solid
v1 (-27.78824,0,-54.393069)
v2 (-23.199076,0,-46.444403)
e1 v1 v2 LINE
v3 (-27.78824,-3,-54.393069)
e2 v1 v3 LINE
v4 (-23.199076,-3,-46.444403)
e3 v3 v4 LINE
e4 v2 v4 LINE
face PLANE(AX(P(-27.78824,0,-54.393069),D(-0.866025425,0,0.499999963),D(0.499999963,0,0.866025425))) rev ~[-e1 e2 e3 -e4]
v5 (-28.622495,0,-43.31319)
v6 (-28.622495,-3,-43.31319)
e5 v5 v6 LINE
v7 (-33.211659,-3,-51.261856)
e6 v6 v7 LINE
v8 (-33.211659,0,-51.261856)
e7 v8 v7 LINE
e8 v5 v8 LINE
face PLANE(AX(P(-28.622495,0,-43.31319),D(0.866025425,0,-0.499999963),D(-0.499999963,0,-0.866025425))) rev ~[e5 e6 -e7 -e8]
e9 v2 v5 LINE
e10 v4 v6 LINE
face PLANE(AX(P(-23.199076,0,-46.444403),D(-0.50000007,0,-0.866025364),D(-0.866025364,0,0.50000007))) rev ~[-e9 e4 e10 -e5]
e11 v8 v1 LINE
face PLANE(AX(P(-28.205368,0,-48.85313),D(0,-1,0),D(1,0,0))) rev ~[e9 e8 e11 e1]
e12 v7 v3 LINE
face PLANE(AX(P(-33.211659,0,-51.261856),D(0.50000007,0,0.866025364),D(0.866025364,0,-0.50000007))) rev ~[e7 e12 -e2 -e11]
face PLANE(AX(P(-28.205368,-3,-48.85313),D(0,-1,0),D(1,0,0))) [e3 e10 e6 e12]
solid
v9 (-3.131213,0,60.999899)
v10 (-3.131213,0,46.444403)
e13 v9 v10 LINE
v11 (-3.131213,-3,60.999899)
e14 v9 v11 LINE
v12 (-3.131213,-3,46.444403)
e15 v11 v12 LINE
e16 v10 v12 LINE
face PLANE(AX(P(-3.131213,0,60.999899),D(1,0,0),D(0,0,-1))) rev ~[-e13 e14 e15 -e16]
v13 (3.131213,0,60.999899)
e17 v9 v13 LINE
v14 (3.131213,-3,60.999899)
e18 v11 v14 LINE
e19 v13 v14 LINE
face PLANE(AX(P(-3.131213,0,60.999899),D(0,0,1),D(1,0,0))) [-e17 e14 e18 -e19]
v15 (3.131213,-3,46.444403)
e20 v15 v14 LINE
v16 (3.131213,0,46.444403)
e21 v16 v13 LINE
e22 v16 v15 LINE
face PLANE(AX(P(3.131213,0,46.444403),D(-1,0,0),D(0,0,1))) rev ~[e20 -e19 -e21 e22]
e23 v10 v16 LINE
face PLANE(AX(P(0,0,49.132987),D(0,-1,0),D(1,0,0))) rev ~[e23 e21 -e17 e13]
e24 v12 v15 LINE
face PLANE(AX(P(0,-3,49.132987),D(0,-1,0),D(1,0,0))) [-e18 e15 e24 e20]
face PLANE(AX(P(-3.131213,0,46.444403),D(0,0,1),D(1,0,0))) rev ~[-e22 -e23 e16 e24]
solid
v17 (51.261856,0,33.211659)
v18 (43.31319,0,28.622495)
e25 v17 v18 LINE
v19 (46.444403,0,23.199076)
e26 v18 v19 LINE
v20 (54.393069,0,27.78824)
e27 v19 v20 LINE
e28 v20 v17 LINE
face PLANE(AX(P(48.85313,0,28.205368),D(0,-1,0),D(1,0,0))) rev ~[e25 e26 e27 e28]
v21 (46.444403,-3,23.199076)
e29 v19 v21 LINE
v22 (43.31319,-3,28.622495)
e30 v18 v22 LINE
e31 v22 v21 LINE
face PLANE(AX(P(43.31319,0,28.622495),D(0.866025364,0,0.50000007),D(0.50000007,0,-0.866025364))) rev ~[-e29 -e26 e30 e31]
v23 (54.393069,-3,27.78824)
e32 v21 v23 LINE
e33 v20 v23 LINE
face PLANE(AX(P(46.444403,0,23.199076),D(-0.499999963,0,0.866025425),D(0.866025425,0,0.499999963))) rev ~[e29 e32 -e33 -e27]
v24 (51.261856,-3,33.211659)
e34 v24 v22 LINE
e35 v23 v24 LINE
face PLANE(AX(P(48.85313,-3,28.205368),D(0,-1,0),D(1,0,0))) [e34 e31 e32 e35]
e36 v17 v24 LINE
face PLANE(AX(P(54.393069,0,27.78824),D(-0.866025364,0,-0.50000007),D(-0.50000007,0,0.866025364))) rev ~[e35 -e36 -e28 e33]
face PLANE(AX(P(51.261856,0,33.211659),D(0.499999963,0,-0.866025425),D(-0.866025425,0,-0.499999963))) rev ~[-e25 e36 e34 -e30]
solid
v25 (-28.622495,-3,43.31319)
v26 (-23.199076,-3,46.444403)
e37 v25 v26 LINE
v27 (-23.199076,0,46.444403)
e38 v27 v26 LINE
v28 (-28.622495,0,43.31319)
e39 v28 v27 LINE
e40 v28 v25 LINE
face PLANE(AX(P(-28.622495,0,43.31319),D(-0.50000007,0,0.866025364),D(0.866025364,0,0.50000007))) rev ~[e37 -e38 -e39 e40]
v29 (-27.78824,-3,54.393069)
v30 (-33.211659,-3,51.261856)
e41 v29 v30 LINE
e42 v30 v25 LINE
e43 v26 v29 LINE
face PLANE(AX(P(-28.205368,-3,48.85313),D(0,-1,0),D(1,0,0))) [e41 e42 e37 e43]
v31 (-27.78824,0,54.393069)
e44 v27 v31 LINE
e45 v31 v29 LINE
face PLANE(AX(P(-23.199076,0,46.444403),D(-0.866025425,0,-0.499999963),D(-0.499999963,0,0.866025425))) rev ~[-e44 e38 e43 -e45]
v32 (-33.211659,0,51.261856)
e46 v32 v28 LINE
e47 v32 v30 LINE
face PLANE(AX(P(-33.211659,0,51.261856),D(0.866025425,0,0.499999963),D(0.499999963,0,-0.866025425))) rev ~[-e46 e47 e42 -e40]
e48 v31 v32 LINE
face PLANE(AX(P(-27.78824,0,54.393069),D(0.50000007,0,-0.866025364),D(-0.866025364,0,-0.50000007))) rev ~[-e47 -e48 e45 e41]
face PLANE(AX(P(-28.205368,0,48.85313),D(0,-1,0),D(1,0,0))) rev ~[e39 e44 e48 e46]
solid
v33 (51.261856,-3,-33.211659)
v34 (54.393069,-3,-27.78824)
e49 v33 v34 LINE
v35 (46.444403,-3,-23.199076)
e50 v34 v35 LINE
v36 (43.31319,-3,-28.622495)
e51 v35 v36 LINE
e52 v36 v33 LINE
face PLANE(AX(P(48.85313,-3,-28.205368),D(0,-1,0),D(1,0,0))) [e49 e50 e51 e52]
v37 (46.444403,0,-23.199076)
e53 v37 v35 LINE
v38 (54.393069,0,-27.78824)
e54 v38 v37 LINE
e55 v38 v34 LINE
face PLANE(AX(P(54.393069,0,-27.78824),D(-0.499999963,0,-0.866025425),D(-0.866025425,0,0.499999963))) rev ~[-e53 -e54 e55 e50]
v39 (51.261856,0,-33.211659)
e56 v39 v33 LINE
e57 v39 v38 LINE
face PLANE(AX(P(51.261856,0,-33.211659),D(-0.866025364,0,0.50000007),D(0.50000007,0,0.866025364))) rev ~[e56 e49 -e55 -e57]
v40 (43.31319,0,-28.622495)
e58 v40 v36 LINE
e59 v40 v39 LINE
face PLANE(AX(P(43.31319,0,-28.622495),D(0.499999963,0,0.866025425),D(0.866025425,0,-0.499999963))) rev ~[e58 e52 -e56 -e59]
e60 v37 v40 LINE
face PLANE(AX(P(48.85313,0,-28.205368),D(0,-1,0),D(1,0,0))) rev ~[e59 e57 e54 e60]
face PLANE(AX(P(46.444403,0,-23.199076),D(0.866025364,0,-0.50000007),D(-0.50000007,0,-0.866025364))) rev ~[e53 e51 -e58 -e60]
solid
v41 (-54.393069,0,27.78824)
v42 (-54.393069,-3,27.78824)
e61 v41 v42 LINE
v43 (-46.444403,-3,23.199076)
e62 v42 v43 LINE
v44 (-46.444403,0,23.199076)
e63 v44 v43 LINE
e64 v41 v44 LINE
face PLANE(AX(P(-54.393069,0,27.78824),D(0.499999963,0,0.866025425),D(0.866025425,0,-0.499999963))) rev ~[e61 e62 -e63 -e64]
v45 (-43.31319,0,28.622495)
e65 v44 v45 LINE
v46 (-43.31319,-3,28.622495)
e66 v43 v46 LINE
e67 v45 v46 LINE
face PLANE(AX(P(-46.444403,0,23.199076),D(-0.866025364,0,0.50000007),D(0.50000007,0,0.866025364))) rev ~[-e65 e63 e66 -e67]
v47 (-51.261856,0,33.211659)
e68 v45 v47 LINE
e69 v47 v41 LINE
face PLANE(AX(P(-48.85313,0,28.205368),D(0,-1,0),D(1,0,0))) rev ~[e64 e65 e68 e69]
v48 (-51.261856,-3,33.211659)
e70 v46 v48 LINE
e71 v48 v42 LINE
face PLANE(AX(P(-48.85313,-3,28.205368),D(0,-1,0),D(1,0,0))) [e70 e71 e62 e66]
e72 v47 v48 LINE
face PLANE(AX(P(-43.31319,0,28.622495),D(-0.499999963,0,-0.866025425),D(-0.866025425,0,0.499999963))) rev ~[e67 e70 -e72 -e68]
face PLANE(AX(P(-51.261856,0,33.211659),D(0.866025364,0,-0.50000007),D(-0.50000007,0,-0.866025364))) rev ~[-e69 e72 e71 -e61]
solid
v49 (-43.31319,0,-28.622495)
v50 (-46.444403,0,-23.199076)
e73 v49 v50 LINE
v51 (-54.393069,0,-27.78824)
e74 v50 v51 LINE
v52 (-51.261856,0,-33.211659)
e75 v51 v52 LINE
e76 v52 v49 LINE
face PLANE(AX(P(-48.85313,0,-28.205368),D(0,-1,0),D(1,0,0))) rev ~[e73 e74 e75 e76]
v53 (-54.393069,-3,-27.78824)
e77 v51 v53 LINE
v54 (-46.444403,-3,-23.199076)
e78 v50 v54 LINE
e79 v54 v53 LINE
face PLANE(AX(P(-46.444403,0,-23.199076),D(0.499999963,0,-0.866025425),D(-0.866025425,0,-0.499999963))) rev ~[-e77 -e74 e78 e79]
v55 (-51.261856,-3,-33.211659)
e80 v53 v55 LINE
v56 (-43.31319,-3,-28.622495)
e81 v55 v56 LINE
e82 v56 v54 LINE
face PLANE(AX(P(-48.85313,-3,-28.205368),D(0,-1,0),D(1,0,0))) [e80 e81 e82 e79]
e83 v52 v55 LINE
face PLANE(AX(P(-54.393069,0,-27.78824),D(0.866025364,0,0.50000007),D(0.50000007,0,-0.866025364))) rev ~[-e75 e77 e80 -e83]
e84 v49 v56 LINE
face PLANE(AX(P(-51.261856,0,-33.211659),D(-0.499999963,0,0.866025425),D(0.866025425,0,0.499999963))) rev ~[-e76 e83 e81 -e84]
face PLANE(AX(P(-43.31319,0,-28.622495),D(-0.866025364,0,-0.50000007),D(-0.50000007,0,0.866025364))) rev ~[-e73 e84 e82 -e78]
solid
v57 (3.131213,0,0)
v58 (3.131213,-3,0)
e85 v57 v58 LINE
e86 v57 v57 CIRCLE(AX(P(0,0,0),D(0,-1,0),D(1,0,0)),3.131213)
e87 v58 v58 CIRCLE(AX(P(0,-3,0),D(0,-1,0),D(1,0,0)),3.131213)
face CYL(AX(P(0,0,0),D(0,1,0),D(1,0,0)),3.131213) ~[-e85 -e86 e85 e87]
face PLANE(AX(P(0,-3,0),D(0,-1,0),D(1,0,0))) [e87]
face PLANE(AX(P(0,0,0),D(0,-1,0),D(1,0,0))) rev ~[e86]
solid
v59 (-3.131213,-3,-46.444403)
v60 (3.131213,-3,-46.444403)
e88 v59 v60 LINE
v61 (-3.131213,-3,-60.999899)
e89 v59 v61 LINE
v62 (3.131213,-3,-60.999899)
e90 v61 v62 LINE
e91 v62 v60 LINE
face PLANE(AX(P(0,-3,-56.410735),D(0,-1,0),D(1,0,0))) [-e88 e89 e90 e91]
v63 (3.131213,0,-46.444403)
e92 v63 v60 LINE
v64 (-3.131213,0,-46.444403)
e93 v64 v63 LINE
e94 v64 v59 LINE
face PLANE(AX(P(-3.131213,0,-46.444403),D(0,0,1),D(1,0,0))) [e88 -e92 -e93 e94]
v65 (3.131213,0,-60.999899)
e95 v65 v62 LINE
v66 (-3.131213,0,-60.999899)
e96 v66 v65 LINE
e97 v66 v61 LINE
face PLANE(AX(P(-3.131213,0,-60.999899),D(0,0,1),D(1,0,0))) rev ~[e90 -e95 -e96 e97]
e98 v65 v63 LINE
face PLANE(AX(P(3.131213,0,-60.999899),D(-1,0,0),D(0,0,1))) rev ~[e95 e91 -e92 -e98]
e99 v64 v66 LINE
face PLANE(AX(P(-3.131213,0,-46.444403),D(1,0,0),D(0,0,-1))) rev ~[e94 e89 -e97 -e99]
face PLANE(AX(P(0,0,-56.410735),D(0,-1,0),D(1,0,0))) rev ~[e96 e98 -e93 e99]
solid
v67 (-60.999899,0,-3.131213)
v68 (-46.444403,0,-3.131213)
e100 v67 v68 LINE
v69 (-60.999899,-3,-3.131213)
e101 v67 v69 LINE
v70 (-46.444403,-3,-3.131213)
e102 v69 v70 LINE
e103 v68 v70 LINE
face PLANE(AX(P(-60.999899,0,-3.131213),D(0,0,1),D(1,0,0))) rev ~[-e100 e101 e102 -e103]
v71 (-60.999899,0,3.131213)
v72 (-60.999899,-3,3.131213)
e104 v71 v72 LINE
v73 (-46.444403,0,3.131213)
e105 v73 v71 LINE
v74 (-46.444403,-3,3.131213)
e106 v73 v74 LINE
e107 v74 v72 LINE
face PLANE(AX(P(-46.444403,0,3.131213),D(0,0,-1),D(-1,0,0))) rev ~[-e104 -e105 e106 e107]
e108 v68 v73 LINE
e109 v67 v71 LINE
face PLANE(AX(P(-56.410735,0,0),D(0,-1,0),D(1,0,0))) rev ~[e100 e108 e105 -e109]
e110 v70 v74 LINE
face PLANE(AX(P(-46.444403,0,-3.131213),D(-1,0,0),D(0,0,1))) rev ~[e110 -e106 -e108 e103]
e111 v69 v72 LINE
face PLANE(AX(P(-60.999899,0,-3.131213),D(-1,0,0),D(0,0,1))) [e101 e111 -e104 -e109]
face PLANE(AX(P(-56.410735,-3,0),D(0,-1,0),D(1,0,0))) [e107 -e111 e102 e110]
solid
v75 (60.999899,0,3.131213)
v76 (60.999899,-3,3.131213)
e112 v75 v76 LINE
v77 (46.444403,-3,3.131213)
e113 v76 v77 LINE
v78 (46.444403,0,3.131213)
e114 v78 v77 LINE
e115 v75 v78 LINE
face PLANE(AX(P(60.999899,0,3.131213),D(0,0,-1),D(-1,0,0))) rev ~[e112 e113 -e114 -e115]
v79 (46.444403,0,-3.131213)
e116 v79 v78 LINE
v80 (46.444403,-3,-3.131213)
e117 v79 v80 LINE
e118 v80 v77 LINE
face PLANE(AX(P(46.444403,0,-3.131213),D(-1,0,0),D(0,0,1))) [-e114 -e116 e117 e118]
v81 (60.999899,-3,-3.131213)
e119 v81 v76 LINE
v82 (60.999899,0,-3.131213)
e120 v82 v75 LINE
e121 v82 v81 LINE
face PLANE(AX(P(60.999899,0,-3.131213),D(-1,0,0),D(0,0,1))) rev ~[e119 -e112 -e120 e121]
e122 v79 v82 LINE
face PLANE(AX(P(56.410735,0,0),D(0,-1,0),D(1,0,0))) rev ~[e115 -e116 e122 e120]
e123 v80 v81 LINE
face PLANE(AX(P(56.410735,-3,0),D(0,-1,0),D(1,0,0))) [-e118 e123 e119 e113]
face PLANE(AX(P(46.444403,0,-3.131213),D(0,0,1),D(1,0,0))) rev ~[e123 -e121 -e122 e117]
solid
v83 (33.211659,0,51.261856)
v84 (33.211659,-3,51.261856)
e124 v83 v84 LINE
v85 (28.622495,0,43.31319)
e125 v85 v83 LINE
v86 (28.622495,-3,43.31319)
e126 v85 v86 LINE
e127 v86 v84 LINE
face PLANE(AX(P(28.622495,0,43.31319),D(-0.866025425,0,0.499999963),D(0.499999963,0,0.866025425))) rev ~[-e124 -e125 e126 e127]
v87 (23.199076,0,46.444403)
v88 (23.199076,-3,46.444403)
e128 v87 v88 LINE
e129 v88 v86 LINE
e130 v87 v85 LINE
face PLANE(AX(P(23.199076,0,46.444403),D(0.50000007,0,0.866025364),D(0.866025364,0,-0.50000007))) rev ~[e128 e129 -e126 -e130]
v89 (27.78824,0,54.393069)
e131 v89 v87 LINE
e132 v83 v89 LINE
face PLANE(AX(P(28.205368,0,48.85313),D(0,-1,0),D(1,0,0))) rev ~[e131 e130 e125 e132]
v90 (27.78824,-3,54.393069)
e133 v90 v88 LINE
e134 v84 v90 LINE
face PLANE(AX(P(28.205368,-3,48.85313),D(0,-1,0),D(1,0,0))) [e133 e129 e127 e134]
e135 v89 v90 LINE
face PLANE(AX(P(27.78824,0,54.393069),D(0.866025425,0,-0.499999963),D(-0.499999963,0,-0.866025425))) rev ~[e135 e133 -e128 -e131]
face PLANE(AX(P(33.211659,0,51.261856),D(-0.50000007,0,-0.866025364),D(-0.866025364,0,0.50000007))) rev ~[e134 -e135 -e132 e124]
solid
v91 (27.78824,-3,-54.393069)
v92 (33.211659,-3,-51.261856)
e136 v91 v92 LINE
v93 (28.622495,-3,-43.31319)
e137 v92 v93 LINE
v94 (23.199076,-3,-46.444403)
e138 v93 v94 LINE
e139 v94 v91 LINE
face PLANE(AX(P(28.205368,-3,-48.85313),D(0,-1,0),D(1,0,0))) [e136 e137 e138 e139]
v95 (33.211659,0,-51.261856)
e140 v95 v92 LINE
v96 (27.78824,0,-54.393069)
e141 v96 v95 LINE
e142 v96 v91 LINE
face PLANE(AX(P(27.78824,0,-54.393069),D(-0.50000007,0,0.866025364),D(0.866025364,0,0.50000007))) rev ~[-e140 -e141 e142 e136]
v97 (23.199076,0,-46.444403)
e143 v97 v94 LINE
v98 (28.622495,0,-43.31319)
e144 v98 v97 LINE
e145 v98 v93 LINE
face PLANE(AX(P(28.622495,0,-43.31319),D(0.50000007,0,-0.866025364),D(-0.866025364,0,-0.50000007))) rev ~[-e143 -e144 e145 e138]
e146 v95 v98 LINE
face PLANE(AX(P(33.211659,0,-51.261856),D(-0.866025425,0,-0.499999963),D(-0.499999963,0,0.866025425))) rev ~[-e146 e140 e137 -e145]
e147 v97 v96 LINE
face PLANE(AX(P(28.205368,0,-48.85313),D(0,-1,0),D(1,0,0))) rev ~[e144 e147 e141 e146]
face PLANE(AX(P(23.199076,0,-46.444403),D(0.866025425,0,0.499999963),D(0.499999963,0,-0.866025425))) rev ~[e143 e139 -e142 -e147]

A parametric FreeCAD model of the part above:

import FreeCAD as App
import Part
import Sketcher

V = App.Vector
Q = App.Units.Quantity


def add_polygon(sketch, points):
    """Adds a closed chain of lines whose ends are joined by coincident constraints."""
    first, n = sketch.GeometryCount, len(points)
    for a, b in zip(points, points[1:] + points[:1]):
        sketch.addGeometry(Part.LineSegment(App.Vector(*a, 0), App.Vector(*b, 0)), False)
    for i in range(n):
        sketch.addConstraint(Sketcher.Constraint("Coincident", first + i, 2, first + (i + 1) % n, 1))

doc = App.newDocument("Part")
body = doc.addObject("PartDesign::Body", "Body")
body.AllowCompound = True

sketch1 = doc.addObject("Sketcher::SketchObject", "Sketch")
body.addObject(sketch1)
sketch1.AttachmentSupport = (doc.XZ_Plane, [""])
sketch1.MapMode = "FlatFace"
add_polygon(sketch1, [(-3.131213, 46.444403), (3.131213, 46.444403), (3.131213, 60.999899), (-3.131213, 60.999899)])
add_polygon(sketch1, [(-33.211659, 51.261856), (-28.622495, 43.31319), (-23.199076, 46.444403), (-27.78824, 54.393069)])
add_polygon(sketch1, [(-54.393069, 27.78824), (-46.444403, 23.199076), (-43.31319, 28.622495), (-51.261856, 33.211659)])
add_polygon(sketch1, [(-60.999899, 3.131213), (-60.999899, -3.131213), (-46.444403, -3.131213), (-46.444403, 3.131213)])
add_polygon(sketch1, [(-51.261856, -33.211659), (-43.31319, -28.622495), (-46.444403, -23.199076), (-54.393069, -27.78824)])
add_polygon(sketch1, [(-27.78824, -54.393069), (-23.199076, -46.444403), (-28.622495, -43.31319), (-33.211659, -51.261856)])
add_polygon(sketch1, [(-3.131213, -60.999899), (3.131213, -60.999899), (3.131213, -46.444403), (-3.131213, -46.444403)])
add_polygon(sketch1, [(33.211659, -51.261856), (28.622495, -43.31319), (23.199076, -46.444403), (27.78824, -54.393069)])
add_polygon(sketch1, [(54.393069, -27.78824), (46.444403, -23.199076), (43.31319, -28.622495), (51.261856, -33.211659)])
add_polygon(sketch1, [(60.999899, -3.131213), (60.999899, 3.131213), (46.444403, 3.131213), (46.444403, -3.131213)])
add_polygon(sketch1, [(51.261856, 33.211659), (43.31319, 28.622495), (46.444403, 23.199076), (54.393069, 27.78824)])
add_polygon(sketch1, [(27.78824, 54.393069), (23.199076, 46.444403), (28.622495, 43.31319), (33.211659, 51.261856)])
sketch1.addGeometry(Part.Circle(V(0, 0, 0), V(0, 0, 1), 3.131213), False)
sketch1.addConstraint([
    Sketcher.Constraint("Horizontal", 0),
    Sketcher.Constraint("Vertical", 1),
    Sketcher.Constraint("Horizontal", 2),
    Sketcher.Constraint("Vertical", 3),
    Sketcher.Constraint("Vertical", 12),
    Sketcher.Constraint("Horizontal", 13),
    Sketcher.Constraint("Vertical", 14),
    Sketcher.Constraint("Horizontal", 15),
    Sketcher.Constraint("Horizontal", 24),
    Sketcher.Constraint("Vertical", 25),
    Sketcher.Constraint("Horizontal", 26),
    Sketcher.Constraint("Vertical", 27),
    Sketcher.Constraint("Vertical", 36),
    Sketcher.Constraint("Horizontal", 37),
    Sketcher.Constraint("Vertical", 38),
    Sketcher.Constraint("Horizontal", 39),
    Sketcher.Constraint("Coincident", 48, 3, -1, 1),
    Sketcher.Constraint("Symmetric", 2, 2, 24, 2, -1, 1),
    Sketcher.Constraint("Symmetric", 0, 2, 26, 2, -1, 1),
    Sketcher.Constraint("Symmetric", 4, 2, 28, 2, -1, 1),
    Sketcher.Constraint("Symmetric", 5, 2, 29, 2, -1, 1),
    Sketcher.Constraint("Symmetric", 6, 2, 30, 2, -1, 1),
    Sketcher.Constraint("Symmetric", 7, 2, 31, 2, -1, 1),
    Sketcher.Constraint("Symmetric", 8, 2, 32, 2, -1, 1),
    Sketcher.Constraint("Symmetric", 9, 2, 33, 2, -1, 1),
    Sketcher.Constraint("Symmetric", 10, 2, 34, 2, -1, 1),
    Sketcher.Constraint("Symmetric", 11, 2, 35, 2, -1, 1),
    Sketcher.Constraint("Symmetric", 12, 2, 36, 2, -1, 1),
    Sketcher.Constraint("Symmetric", 14, 2, 38, 2, -1, 1),
    Sketcher.Constraint("Symmetric", 16, 2, 40, 2, -1, 1),
    Sketcher.Constraint("Symmetric", 17, 2, 41, 2, -1, 1),
    Sketcher.Constraint("Symmetric", 18, 2, 42, 2, -1, 1),
    Sketcher.Constraint("Symmetric", 19, 2, 43, 2, -1, 1),
    Sketcher.Constraint("Symmetric", 20, 2, 44, 2, -1, 1),
    Sketcher.Constraint("Symmetric", 21, 2, 45, 2, -1, 1),
    Sketcher.Constraint("Symmetric", 22, 2, 46, 2, -1, 1),
    Sketcher.Constraint("Symmetric", 23, 2, 47, 2, -1, 1),
    Sketcher.Constraint("Symmetric", 21, 2, 28, 2, -2),
    Sketcher.Constraint("Symmetric", 20, 2, 29, 2, -2),
    Sketcher.Constraint("Symmetric", 23, 2, 30, 2, -2),
    Sketcher.Constraint("Symmetric", 22, 2, 31, 2, -2),
    Sketcher.Constraint("Symmetric", 17, 2, 32, 2, -2),
    Sketcher.Constraint("Symmetric", 16, 2, 33, 2, -2),
    Sketcher.Constraint("Symmetric", 19, 2, 34, 2, -2),
    Sketcher.Constraint("Symmetric", 18, 2, 35, 2, -2),
    Sketcher.Constraint("Perpendicular", 4, 5),
    Sketcher.Constraint("Perpendicular", 5, 6),
    Sketcher.Constraint("Perpendicular", 6, 7),
    Sketcher.Constraint("Perpendicular", 8, 9),
    Sketcher.Constraint("Perpendicular", 9, 10),
    Sketcher.Constraint("Perpendicular", 10, 11),
    Sketcher.Constraint("Parallel", 7, 16),
    Sketcher.Constraint("Horizontal", 3, 2, 5, 2),
    Sketcher.Constraint("Horizontal", 15, 2, 36, 2),
    Sketcher.Constraint("Vertical", 8, 2, 13, 2),
    Sketcher.Constraint("Vertical", 1, 2, 24, 2),
    Sketcher.Constraint("Equal", 39, 1),
    Sketcher.Constraint("Equal", 26, 12),
    Sketcher.Constraint("Equal", 6, 8),
    Sketcher.Constraint("Equal", 7, 9),
    Sketcher.Constraint("Angle", 4, Q("-60.000002 deg")),
    Sketcher.Constraint("Diameter", 48, 6.262426),
    Sketcher.Constraint("DistanceY", -1, 1, 1, 2, 60.999899),
    Sketcher.Constraint("DistanceX", 12, 2, -1, 1, 60.999899),
    Sketcher.Constraint("Distance", 4, 9.178329),
    Sketcher.Constraint("DistanceX", 0, 1, 0, 2, 6.262426),
    Sketcher.Constraint("DistanceX", 13, 1, 13, 2, 14.555496),
    Sketcher.Constraint("DistanceY", -1, 1, 4, 2, 43.31319),
    Sketcher.Constraint("DistanceX", 6, 2, -1, 1, 27.78824),
    Sketcher.Constraint("DistanceY", -1, 1, 10, 2, 33.211659),
])
pad1 = doc.addObject("PartDesign::Pad", "Pad")
body.addObject(pad1)
pad1.Profile = sketch1
pad1.Length = 3

doc.recompute()
